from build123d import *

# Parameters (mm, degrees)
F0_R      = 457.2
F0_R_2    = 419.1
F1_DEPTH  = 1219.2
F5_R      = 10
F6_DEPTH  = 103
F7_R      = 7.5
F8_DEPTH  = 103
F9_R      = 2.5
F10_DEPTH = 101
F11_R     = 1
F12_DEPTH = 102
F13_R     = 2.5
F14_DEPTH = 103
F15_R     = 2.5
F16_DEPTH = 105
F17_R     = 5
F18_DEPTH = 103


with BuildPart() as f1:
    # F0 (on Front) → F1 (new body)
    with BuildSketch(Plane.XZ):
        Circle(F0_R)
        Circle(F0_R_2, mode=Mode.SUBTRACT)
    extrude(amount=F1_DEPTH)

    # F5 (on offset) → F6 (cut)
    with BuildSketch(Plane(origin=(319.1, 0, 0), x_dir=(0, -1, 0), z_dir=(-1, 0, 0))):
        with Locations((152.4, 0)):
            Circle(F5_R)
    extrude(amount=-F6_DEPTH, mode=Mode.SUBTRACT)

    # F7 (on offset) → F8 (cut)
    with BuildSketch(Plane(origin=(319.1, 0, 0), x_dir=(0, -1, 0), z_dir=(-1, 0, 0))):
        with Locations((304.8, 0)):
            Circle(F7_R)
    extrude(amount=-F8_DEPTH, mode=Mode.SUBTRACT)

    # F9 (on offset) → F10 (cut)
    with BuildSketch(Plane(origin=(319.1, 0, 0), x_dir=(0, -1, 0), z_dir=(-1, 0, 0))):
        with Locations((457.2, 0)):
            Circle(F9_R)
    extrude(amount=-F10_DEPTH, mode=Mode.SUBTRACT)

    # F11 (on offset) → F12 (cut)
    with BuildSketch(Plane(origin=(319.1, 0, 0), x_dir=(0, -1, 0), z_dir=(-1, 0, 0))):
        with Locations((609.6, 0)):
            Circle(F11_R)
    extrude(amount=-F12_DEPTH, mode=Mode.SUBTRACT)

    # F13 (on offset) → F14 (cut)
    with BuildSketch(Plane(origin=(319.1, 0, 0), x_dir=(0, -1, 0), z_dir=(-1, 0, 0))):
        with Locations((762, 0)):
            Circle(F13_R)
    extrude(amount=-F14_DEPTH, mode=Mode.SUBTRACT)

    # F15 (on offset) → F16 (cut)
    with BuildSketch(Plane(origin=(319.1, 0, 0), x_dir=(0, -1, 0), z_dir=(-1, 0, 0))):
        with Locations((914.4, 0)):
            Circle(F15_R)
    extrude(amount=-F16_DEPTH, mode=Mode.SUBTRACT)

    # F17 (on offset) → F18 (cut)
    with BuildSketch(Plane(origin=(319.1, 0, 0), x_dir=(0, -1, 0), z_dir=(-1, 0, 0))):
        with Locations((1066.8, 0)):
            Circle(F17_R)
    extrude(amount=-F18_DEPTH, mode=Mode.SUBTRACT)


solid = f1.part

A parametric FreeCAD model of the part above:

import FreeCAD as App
import Part
import Sketcher

doc = App.newDocument("Part")
body = doc.addObject("PartDesign::Body", "Body")

# Sketch on XZ plane
sketch1 = doc.addObject("Sketcher::SketchObject", "Sketch")
body.addObject(sketch1)
sketch1.AttachmentSupport = (doc.XZ_Plane, [""])
sketch1.MapMode = "FlatFace"
sketch1.addGeometry([
    Part.Circle(App.Vector(0, 0, 0), App.Vector(0, 0, 1), 457.2),
    Part.Circle(App.Vector(0, 0, 0), App.Vector(0, 0, 1), 419.1),
], False)
sketch1.addConstraint([
    Sketcher.Constraint("Coincident", 0, 3, -1, 1),
    Sketcher.Constraint("Coincident", 1, 3, -1, 1),
    Sketcher.Constraint("Diameter", 0, 914.4),
    Sketcher.Constraint("Diameter", 1, 838.2),
])
pad1 = doc.addObject("PartDesign::Pad", "Pad")
body.addObject(pad1)
pad1.Profile = sketch1
pad1.Length = 1219.2

# Sketch on YZ plane
sketch2 = doc.addObject("Sketcher::SketchObject", "Sketch001")
body.addObject(sketch2)
sketch2.AttachmentSupport = (doc.YZ_Plane, [""])
sketch2.MapMode = "FlatFace"
sketch2.AttachmentOffset = App.Placement(App.Vector(0, 0, 319.1), App.Rotation())
sketch2.addGeometry(Part.Circle(App.Vector(-152.4, 0, 0), App.Vector(0, 0, 1), 10), False)
sketch2.addConstraint([
    Sketcher.Constraint("PointOnObject", 0, 3, -1),
    Sketcher.Constraint("Diameter", 0, 20.0),
    Sketcher.Constraint("DistanceX", 0, 3, -1, 1, 152.4),
])
pocket1 = doc.addObject("PartDesign::Pocket", "Pocket")
body.addObject(pocket1)
pocket1.Profile = sketch2
pocket1.Length = 103
pocket1.Reversed = True

# Sketch on YZ plane
sketch3 = doc.addObject("Sketcher::SketchObject", "Sketch002")
body.addObject(sketch3)
sketch3.AttachmentSupport = (doc.YZ_Plane, [""])
sketch3.MapMode = "FlatFace"
sketch3.AttachmentOffset = App.Placement(App.Vector(0, 0, 319.1), App.Rotation())
sketch3.addGeometry(Part.Circle(App.Vector(-304.8, 0, 0), App.Vector(0, 0, 1), 7.5), False)
sketch3.addConstraint([
    Sketcher.Constraint("PointOnObject", 0, 3, -1),
    Sketcher.Constraint("Diameter", 0, 15.0),
    Sketcher.Constraint("DistanceX", 0, 3, -1, 1, 304.8),
])
pocket2 = doc.addObject("PartDesign::Pocket", "Pocket001")
body.addObject(pocket2)
pocket2.Profile = sketch3
pocket2.Length = 103
pocket2.Reversed = True

# Sketch on YZ plane
sketch4 = doc.addObject("Sketcher::SketchObject", "Sketch003")
body.addObject(sketch4)
sketch4.AttachmentSupport = (doc.YZ_Plane, [""])
sketch4.MapMode = "FlatFace"
sketch4.AttachmentOffset = App.Placement(App.Vector(0, 0, 319.1), App.Rotation())
sketch4.addGeometry(Part.Circle(App.Vector(-457.2, 0, 0), App.Vector(0, 0, 1), 2.5), False)
sketch4.addConstraint([
    Sketcher.Constraint("PointOnObject", 0, 3, -1),
    Sketcher.Constraint("Diameter", 0, 5.0),
    Sketcher.Constraint("DistanceX", 0, 3, -1, 1, 457.2),
])
pocket3 = doc.addObject("PartDesign::Pocket", "Pocket002")
body.addObject(pocket3)
pocket3.Profile = sketch4
pocket3.Length = 101
pocket3.Reversed = True

# Sketch on YZ plane
sketch5 = doc.addObject("Sketcher::SketchObject", "Sketch004")
body.addObject(sketch5)
sketch5.AttachmentSupport = (doc.YZ_Plane, [""])
sketch5.MapMode = "FlatFace"
sketch5.AttachmentOffset = App.Placement(App.Vector(0, 0, 319.1), App.Rotation())
sketch5.addGeometry(Part.Circle(App.Vector(-609.6, 0, 0), App.Vector(0, 0, 1), 1), False)
sketch5.addConstraint([
    Sketcher.Constraint("PointOnObject", 0, 3, -1),
    Sketcher.Constraint("Diameter", 0, 2.0),
    Sketcher.Constraint("DistanceX", 0, 3, -1, 1, 609.6),
])
pocket4 = doc.addObject("PartDesign::Pocket", "Pocket003")
body.addObject(pocket4)
pocket4.Profile = sketch5
pocket4.Length = 102
pocket4.Reversed = True

# Sketch on YZ plane
sketch6 = doc.addObject("Sketcher::SketchObject", "Sketch005")
body.addObject(sketch6)
sketch6.AttachmentSupport = (doc.YZ_Plane, [""])
sketch6.MapMode = "FlatFace"
sketch6.AttachmentOffset = App.Placement(App.Vector(0, 0, 319.1), App.Rotation())
sketch6.addGeometry(Part.Circle(App.Vector(-762, 0, 0), App.Vector(0, 0, 1), 2.5), False)
sketch6.addConstraint([
    Sketcher.Constraint("PointOnObject", 0, 3, -1),
    Sketcher.Constraint("Diameter", 0, 5.0),
    Sketcher.Constraint("DistanceX", 0, 3, -1, 1, 762.0),
])
pocket5 = doc.addObject("PartDesign::Pocket", "Pocket004")
body.addObject(pocket5)
pocket5.Profile = sketch6
pocket5.Length = 103
pocket5.Reversed = True

# Sketch on YZ plane
sketch7 = doc.addObject("Sketcher::SketchObject", "Sketch006")
body.addObject(sketch7)
sketch7.AttachmentSupport = (doc.YZ_Plane, [""])
sketch7.MapMode = "FlatFace"
sketch7.AttachmentOffset = App.Placement(App.Vector(0, 0, 319.1), App.Rotation())
sketch7.addGeometry(Part.Circle(App.Vector(-914.4, 0, 0), App.Vector(0, 0, 1), 2.5), False)
sketch7.addConstraint([
    Sketcher.Constraint("PointOnObject", 0, 3, -1),
    Sketcher.Constraint("Diameter", 0, 5.0),
    Sketcher.Constraint("DistanceX", 0, 3, -1, 1, 914.4),
])
pocket6 = doc.addObject("PartDesign::Pocket", "Pocket005")
body.addObject(pocket6)
pocket6.Profile = sketch7
pocket6.Length = 105
pocket6.Reversed = True

# Sketch on YZ plane
sketch8 = doc.addObject("Sketcher::SketchObject", "Sketch007")
body.addObject(sketch8)
sketch8.AttachmentSupport = (doc.YZ_Plane, [""])
sketch8.MapMode = "FlatFace"
sketch8.AttachmentOffset = App.Placement(App.Vector(0, 0, 319.1), App.Rotation())
sketch8.addGeometry(Part.Circle(App.Vector(-1066.8, 0, 0), App.Vector(0, 0, 1), 5), False)
sketch8.addConstraint([
    Sketcher.Constraint("PointOnObject", 0, 3, -1),
    Sketcher.Constraint("Diameter", 0, 10.0),
    Sketcher.Constraint("DistanceX", 0, 3, -1, 1, 1066.8),
])
pocket7 = doc.addObject("PartDesign::Pocket", "Pocket006")
body.addObject(pocket7)
pocket7.Profile = sketch8
pocket7.Length = 103
pocket7.Reversed = True

doc.recompute()
